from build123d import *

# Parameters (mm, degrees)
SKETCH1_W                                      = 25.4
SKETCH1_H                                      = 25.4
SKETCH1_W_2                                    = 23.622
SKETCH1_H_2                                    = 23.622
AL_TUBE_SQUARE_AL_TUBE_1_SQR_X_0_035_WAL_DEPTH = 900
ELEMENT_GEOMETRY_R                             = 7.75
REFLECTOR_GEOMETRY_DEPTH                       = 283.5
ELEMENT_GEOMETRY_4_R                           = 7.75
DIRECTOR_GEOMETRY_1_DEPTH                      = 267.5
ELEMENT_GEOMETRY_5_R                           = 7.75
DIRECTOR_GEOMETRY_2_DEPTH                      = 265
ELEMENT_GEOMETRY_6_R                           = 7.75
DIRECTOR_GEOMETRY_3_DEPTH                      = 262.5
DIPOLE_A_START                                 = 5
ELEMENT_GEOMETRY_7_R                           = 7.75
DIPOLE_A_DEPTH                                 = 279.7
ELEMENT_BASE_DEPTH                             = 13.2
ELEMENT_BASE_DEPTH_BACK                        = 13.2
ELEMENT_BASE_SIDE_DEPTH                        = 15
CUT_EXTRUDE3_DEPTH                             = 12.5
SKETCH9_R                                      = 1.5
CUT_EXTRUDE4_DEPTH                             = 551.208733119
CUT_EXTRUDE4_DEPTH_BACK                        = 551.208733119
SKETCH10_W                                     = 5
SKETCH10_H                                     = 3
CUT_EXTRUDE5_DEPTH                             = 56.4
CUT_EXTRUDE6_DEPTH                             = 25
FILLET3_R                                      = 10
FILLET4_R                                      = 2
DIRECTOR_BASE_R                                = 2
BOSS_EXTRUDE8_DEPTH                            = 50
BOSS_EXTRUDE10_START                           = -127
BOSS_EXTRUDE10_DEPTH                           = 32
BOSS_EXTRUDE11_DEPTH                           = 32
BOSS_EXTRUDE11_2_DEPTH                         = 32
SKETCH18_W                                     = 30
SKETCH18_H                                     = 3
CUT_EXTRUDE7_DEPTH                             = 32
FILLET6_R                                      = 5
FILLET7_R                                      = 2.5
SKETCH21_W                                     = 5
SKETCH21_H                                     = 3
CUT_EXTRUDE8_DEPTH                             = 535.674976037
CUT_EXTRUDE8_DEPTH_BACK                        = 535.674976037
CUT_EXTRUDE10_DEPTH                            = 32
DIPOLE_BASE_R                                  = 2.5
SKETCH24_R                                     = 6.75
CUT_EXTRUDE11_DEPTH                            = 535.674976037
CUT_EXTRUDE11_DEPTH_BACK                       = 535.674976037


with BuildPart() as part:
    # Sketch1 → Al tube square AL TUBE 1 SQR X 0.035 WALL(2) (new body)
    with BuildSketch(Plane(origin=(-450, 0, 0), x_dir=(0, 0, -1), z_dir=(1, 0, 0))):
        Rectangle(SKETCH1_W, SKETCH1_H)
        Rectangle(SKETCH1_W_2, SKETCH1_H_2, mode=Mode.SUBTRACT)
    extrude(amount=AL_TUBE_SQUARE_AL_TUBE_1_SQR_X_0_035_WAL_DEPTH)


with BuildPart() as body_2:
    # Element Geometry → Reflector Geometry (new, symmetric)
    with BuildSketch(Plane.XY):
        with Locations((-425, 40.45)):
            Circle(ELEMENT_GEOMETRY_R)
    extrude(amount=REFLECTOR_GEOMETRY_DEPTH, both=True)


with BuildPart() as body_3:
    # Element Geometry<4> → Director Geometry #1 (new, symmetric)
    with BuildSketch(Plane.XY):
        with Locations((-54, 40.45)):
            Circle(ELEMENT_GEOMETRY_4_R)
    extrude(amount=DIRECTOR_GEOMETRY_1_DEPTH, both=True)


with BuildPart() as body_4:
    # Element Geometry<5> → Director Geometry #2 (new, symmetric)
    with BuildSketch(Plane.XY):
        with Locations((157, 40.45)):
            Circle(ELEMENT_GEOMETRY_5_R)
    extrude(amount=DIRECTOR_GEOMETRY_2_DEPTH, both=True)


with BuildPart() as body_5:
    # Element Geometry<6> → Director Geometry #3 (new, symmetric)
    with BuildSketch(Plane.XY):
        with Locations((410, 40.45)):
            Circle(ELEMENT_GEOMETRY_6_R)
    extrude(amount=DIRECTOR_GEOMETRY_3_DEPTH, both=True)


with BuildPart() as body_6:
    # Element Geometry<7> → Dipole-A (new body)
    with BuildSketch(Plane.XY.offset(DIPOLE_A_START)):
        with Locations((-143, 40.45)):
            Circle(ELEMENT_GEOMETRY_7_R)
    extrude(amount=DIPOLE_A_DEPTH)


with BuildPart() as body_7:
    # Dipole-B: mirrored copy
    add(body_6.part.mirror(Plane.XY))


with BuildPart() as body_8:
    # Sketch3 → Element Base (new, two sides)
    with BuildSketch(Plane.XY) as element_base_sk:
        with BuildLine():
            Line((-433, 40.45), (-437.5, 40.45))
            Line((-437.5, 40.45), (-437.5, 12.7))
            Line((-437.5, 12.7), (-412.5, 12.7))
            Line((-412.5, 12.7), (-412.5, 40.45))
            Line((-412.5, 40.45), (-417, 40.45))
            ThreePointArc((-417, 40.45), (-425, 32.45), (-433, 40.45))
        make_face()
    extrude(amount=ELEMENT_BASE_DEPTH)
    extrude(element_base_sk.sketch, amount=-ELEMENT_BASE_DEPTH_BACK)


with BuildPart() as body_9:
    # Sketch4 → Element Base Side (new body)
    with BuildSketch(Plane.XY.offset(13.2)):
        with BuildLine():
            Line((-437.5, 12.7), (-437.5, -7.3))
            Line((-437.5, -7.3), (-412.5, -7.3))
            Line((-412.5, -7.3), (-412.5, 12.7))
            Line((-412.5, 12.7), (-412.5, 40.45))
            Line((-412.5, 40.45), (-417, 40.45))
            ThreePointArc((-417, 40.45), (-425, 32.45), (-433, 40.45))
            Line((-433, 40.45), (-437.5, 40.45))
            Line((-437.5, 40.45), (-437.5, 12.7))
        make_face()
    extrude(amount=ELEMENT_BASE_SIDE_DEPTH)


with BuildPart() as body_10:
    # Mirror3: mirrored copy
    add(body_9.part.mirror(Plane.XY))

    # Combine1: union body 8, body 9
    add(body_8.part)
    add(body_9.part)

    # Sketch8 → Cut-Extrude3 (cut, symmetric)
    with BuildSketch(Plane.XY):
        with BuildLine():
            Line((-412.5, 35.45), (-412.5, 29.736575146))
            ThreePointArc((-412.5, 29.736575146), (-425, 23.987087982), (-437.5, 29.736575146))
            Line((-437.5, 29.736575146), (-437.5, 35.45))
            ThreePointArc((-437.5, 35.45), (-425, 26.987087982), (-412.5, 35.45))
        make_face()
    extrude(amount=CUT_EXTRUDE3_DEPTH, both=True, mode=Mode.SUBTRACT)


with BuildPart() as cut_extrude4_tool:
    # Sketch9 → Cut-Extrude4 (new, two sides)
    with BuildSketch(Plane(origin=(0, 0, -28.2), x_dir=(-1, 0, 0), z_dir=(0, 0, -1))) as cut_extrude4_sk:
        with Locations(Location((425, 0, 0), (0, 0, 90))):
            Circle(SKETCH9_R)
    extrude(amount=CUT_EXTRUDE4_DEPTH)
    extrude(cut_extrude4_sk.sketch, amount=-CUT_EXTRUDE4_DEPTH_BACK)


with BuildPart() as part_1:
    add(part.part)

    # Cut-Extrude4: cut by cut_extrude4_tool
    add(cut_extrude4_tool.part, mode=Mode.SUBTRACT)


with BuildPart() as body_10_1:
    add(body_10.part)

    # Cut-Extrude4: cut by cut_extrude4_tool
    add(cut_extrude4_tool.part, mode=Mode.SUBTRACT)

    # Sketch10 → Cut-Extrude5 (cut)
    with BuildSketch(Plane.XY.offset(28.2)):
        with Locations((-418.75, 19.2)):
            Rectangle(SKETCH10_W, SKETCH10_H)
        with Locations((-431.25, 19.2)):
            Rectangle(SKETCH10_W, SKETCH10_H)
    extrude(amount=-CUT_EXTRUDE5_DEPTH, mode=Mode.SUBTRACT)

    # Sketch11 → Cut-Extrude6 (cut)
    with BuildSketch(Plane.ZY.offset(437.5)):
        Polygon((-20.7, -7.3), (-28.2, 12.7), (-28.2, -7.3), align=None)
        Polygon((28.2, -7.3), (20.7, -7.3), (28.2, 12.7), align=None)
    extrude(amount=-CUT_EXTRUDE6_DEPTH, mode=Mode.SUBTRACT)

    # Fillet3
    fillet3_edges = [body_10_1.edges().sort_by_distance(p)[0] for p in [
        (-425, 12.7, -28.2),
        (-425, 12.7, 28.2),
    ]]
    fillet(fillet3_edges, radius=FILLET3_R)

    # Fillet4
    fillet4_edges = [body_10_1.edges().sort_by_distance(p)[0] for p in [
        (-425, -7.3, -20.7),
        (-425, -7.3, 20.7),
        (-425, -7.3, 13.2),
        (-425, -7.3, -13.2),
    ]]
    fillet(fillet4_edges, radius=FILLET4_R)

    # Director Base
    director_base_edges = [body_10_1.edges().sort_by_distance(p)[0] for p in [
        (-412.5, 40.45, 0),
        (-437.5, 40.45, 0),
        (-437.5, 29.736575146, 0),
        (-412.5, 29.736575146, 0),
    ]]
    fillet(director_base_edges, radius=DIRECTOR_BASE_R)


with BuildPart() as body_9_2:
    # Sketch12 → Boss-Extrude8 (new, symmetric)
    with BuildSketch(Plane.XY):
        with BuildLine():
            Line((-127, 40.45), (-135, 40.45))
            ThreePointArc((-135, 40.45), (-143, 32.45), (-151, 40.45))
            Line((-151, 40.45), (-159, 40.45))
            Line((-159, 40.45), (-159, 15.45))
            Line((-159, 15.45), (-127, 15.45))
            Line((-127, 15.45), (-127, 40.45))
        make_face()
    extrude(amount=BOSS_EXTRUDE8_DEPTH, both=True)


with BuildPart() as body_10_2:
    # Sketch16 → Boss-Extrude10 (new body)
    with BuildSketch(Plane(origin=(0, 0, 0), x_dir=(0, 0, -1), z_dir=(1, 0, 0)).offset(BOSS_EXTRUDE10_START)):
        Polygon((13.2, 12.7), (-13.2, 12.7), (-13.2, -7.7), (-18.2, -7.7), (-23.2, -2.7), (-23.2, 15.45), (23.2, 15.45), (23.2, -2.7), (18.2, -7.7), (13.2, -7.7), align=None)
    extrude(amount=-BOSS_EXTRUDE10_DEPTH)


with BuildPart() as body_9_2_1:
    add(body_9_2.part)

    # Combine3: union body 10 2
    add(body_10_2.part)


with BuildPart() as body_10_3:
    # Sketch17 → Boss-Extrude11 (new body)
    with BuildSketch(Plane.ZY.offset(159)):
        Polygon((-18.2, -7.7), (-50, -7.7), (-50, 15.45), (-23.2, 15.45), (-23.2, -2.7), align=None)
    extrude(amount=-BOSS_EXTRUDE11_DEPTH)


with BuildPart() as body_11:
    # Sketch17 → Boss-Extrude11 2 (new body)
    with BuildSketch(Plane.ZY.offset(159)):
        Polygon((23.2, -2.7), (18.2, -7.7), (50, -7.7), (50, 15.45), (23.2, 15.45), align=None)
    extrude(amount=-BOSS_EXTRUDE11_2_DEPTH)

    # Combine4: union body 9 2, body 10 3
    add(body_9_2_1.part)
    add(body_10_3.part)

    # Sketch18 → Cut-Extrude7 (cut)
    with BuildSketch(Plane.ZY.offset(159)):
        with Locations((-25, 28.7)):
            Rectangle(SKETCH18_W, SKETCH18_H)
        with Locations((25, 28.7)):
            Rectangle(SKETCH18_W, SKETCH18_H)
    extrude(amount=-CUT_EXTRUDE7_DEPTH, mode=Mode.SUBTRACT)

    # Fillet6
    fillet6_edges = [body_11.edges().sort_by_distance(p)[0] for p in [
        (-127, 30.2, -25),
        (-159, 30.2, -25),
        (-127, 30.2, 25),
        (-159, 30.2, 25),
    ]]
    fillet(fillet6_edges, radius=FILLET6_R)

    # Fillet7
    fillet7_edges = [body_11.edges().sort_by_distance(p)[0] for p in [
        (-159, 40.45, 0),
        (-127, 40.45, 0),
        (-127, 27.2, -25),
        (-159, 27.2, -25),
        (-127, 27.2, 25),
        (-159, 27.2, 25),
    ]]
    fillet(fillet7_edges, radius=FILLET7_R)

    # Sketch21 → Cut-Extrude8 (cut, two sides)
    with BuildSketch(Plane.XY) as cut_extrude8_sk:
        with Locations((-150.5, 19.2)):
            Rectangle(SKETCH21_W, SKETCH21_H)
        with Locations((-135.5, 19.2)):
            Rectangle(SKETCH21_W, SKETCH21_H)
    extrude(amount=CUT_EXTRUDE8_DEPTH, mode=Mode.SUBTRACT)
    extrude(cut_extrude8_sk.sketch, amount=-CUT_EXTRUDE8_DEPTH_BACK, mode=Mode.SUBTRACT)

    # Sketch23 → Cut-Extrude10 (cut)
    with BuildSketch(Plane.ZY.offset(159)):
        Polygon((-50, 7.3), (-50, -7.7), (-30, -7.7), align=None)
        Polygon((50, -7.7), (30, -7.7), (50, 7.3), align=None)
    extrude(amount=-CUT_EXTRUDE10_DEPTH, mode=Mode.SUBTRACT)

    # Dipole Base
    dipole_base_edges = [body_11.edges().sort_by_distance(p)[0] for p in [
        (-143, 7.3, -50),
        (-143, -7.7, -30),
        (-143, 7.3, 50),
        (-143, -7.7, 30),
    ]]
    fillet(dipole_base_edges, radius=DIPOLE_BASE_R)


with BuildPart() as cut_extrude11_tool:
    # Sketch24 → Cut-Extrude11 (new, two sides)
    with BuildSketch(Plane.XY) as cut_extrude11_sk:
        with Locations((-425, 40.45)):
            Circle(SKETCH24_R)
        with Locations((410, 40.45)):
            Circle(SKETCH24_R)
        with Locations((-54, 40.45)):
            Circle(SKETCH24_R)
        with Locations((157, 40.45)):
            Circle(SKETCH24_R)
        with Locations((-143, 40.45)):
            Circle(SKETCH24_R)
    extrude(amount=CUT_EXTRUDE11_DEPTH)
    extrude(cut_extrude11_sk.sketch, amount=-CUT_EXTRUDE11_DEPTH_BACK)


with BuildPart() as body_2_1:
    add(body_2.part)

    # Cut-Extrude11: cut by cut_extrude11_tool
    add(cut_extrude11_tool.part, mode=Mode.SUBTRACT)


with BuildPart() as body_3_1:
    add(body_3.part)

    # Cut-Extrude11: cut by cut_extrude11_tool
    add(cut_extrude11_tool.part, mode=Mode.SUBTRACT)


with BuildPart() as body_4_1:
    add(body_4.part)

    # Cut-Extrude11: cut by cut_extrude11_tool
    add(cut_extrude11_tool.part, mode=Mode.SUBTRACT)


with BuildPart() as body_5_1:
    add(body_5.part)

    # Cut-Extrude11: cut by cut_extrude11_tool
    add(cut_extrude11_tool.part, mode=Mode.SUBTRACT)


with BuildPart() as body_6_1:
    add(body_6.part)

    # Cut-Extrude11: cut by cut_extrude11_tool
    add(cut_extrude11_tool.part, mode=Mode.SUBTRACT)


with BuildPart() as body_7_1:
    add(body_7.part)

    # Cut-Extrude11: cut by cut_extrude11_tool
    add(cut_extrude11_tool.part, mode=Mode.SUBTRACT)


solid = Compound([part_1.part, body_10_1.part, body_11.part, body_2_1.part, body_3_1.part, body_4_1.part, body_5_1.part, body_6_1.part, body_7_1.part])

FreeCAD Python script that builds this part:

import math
import FreeCAD as App
import Part
import Sketcher

V = App.Vector
Q = App.Units.Quantity


def edges_at(feature, points):
    """Names of the edges that pass closest to the given points."""
    edges = feature.Shape.Edges
    near = lambda p: min(range(len(edges)), key=lambda i: edges[i].distToShape(Part.Vertex(*p))[0])
    return sorted({f"Edge{near(p) + 1}" for p in points})


def add_polygon(sketch, points):
    """Adds a closed chain of lines whose ends are joined by coincident constraints."""
    first, n = sketch.GeometryCount, len(points)
    for a, b in zip(points, points[1:] + points[:1]):
        sketch.addGeometry(Part.LineSegment(App.Vector(*a, 0), App.Vector(*b, 0)), False)
    for i in range(n):
        sketch.addConstraint(Sketcher.Constraint("Coincident", first + i, 2, first + (i + 1) % n, 1))

doc = App.newDocument("Part")
params = doc.addObject("Spreadsheet::Sheet", "Params")
for row, (alias, value) in enumerate([
    ("sketch1_width", "25.4 mm"),
    ("pad1_length", "900 mm"),
    ("sketch2_diameter", "15.5 mm"),
    ("pad2_length", "567 mm"),
    ("sketch3_diameter", "15.5 mm"),
    ("pad3_length", "535 mm"),
    ("sketch4_diameter", "15.5 mm"),
    ("pad4_length", "530 mm"),
    ("sketch5_diameter", "15.5 mm"),
    ("pad5_length", "525 mm"),
    ("sketch6_diameter", "15.5 mm"),
    ("pad6_length", "279.7 mm"),
    ("sketch7_radius", "8 mm"),
    ("sketch7_width", "25 mm"),
    ("sketch7_height", "27.75 mm"),
    ("pad7_length", "13.2 mm"),
    ("pad7_length2", "13.2 mm"),
    ("sketch8_radius", "8 mm"),
    ("sketch8_width", "25 mm"),
    ("sketch8_height", "47.75 mm"),
    ("pad8_length", "15 mm"),
    ("pocket1_length", "25 mm"),
    ("sketch10_diameter", "3 mm"),
    ("pad9_length", "551.208733 mm"),
    ("pad9_length2", "551.208733 mm"),
    ("sketch11_width", "5 mm"),
    ("sketch11_height", "3 mm"),
    ("pocket2_length", "56.4 mm"),
    ("sketch12_width", "20 mm"),
    ("sketch12_height", "7.5 mm"),
    ("pocket3_length", "25 mm"),
    ("fillet_radius", "10 mm"),
    ("fillet2_radius", "2 mm"),
    ("fillet3_radius", "2 mm"),
    ("sketch13_radius", "8 mm"),
    ("sketch13_width", "8 mm"),
    ("sketch13_height", "25 mm"),
    ("pad10_length", "100 mm"),
    ("sketch14_height", "5 mm"),
    ("sketch14_width", "20.4 mm"),
    ("sketch14_height2", "26.4 mm"),
    ("sketch14_height3", "46.4 mm"),
    ("sketch14_width2", "18.15 mm"),
    ("pad11_length", "32 mm"),
    ("sketch15_height", "31.8 mm"),
    ("sketch15_height2", "26.8 mm"),
    ("sketch15_width", "18.15 mm"),
    ("pad12_length", "32 mm"),
    ("sketch16_height", "31.8 mm"),
    ("sketch16_height2", "26.8 mm"),
    ("sketch16_width", "23.15 mm"),
    ("pad13_length", "32 mm"),
    ("sketch17_width", "3 mm"),
    ("sketch17_height", "30 mm"),
    ("pocket4_length", "32 mm"),
    ("fillet4_radius", "5 mm"),
    ("fillet5_radius", "2.5 mm"),
    ("sketch18_width", "5 mm"),
    ("sketch18_height", "3 mm"),
    ("sketch19_width", "15 mm"),
    ("sketch19_height", "20 mm"),
    ("pocket6_length", "32 mm"),
    ("fillet6_radius", "2.5 mm"),
    ("sketch20_diameter", "13.5 mm"),
    ("pad14_length", "535.674976 mm"),
    ("pad14_length2", "535.674976 mm"),
], start=1):
    params.set(f"A{row}", alias)
    params.set(f"B{row}", "=" + value)
    params.setAlias(f"B{row}", alias)

body = doc.addObject("PartDesign::Body", "Body")

# Sketch on YZ plane
sketch1 = doc.addObject("Sketcher::SketchObject", "Sketch")
body.addObject(sketch1)
sketch1.AttachmentSupport = (doc.YZ_Plane, [""])
sketch1.MapMode = "FlatFace"
sketch1.AttachmentOffset = App.Placement(V(0, 0, -450), App.Rotation())
add_polygon(sketch1, [(13, 13), (-13, 13), (-13, -13), (13, -13)])  # lines 0-3
add_polygon(sketch1, [(-12, -12), (-12, 12), (12, 12), (12, -12)])  # lines 4-7
sketch1.addConstraint(Sketcher.Constraint("Horizontal", 0))
sketch1.addConstraint(Sketcher.Constraint("Vertical", 1))
sketch1.addConstraint(Sketcher.Constraint("Horizontal", 2))
sketch1.addConstraint(Sketcher.Constraint("Vertical", 3))
sketch1.addConstraint(Sketcher.Constraint("Vertical", 4))
sketch1.addConstraint(Sketcher.Constraint("Horizontal", 5))
sketch1.addConstraint(Sketcher.Constraint("Vertical", 6))
sketch1.addConstraint(Sketcher.Constraint("Horizontal", 7))
sketch1.addConstraint(Sketcher.Constraint("Symmetric", 0, 2, 2, 2, -1, 1))
sketch1.addConstraint(Sketcher.Constraint("Symmetric", 4, 2, 6, 2, -1, 1))
sketch1.addConstraint(Sketcher.Constraint("Equal", 2, 1))
sketch1.addConstraint(Sketcher.Constraint("Equal", 7, 4))
sketch1.addConstraint(Sketcher.Constraint("DistanceX", 0, 2, 0, 1, 25.4))
sketch1.addConstraint(Sketcher.Constraint("DistanceX", 5, 1, 5, 2, 23.622))
sketch1.setExpression("Constraints[20]", "Params.sketch1_width")
pad1 = doc.addObject("PartDesign::Pad", "Pad")
body.addObject(pad1)
pad1.Profile = sketch1
pad1.setExpression("Length", "Params.pad1_length")
body2 = doc.addObject("PartDesign::Body", "Body001")

# Sketch on XY plane
sketch2 = doc.addObject("Sketcher::SketchObject", "Sketch001")
body2.addObject(sketch2)
sketch2.AttachmentSupport = (doc.getObject("XY_Plane001"), [""])
sketch2.MapMode = "FlatFace"
sketch2.addGeometry(Part.Circle(V(-425, 40, 0), V(0, 0, 1), 8), False)
sketch2.addConstraint(Sketcher.Constraint("Diameter", 0, 15.5))
sketch2.addConstraint(Sketcher.Constraint("DistanceX", 0, 3, -1, 1, 425.0))
sketch2.addConstraint(Sketcher.Constraint("DistanceY", -1, 1, 0, 3, 40.45))
sketch2.setExpression("Constraints[0]", "Params.sketch2_diameter")
pad2 = doc.addObject("PartDesign::Pad", "Pad001")
body2.addObject(pad2)
pad2.Profile = sketch2
pad2.setExpression("Length", "Params.pad2_length")
pad2.Midplane = True
body3 = doc.addObject("PartDesign::Body", "Body002")

# Sketch on XY plane
sketch3 = doc.addObject("Sketcher::SketchObject", "Sketch002")
body3.addObject(sketch3)
sketch3.AttachmentSupport = (doc.getObject("XY_Plane002"), [""])
sketch3.MapMode = "FlatFace"
sketch3.addGeometry(Part.Circle(V(-54, 40, 0), V(0, 0, 1), 8), False)
sketch3.addConstraint(Sketcher.Constraint("Diameter", 0, 15.5))
sketch3.addConstraint(Sketcher.Constraint("DistanceX", 0, 3, -1, 1, 54.0))
sketch3.addConstraint(Sketcher.Constraint("DistanceY", -1, 1, 0, 3, 40.45))
sketch3.setExpression("Constraints[0]", "Params.sketch3_diameter")
pad3 = doc.addObject("PartDesign::Pad", "Pad002")
body3.addObject(pad3)
pad3.Profile = sketch3
pad3.setExpression("Length", "Params.pad3_length")
pad3.Midplane = True
body4 = doc.addObject("PartDesign::Body", "Body003")

# Sketch on XY plane
sketch4 = doc.addObject("Sketcher::SketchObject", "Sketch003")
body4.addObject(sketch4)
sketch4.AttachmentSupport = (doc.getObject("XY_Plane003"), [""])
sketch4.MapMode = "FlatFace"
sketch4.addGeometry(Part.Circle(V(157, 40, 0), V(0, 0, 1), 8), False)
sketch4.addConstraint(Sketcher.Constraint("Diameter", 0, 15.5))
sketch4.addConstraint(Sketcher.Constraint("DistanceX", -1, 1, 0, 3, 157.0))
sketch4.addConstraint(Sketcher.Constraint("DistanceY", -1, 1, 0, 3, 40.45))
sketch4.setExpression("Constraints[0]", "Params.sketch4_diameter")
pad4 = doc.addObject("PartDesign::Pad", "Pad003")
body4.addObject(pad4)
pad4.Profile = sketch4
pad4.setExpression("Length", "Params.pad4_length")
pad4.Midplane = True
body5 = doc.addObject("PartDesign::Body", "Body004")

# Sketch on XY plane
sketch5 = doc.addObject("Sketcher::SketchObject", "Sketch004")
body5.addObject(sketch5)
sketch5.AttachmentSupport = (doc.getObject("XY_Plane004"), [""])
sketch5.MapMode = "FlatFace"
sketch5.addGeometry(Part.Circle(V(410, 40, 0), V(0, 0, 1), 8), False)
sketch5.addConstraint(Sketcher.Constraint("Diameter", 0, 15.5))
sketch5.addConstraint(Sketcher.Constraint("DistanceX", -1, 1, 0, 3, 410.0))
sketch5.addConstraint(Sketcher.Constraint("DistanceY", -1, 1, 0, 3, 40.45))
sketch5.setExpression("Constraints[0]", "Params.sketch5_diameter")
pad5 = doc.addObject("PartDesign::Pad", "Pad004")
body5.addObject(pad5)
pad5.Profile = sketch5
pad5.setExpression("Length", "Params.pad5_length")
pad5.Midplane = True
body6 = doc.addObject("PartDesign::Body", "Body005")

# Sketch on XY plane
sketch6 = doc.addObject("Sketcher::SketchObject", "Sketch005")
body6.addObject(sketch6)
sketch6.AttachmentSupport = (doc.getObject("XY_Plane005"), [""])
sketch6.MapMode = "FlatFace"
sketch6.AttachmentOffset = App.Placement(V(0, 0, 5), App.Rotation())
sketch6.addGeometry(Part.Circle(V(-143, 40, 0), V(0, 0, 1), 8), False)
sketch6.addConstraint(Sketcher.Constraint("Diameter", 0, 15.5))
sketch6.addConstraint(Sketcher.Constraint("DistanceX", 0, 3, -1, 1, 143.0))
sketch6.addConstraint(Sketcher.Constraint("DistanceY", -1, 1, 0, 3, 40.45))
sketch6.setExpression("Constraints[0]", "Params.sketch6_diameter")
pad6 = doc.addObject("PartDesign::Pad", "Pad005")
body6.addObject(pad6)
pad6.Profile = sketch6
pad6.setExpression("Length", "Params.pad6_length")
body7 = doc.addObject("PartDesign::Body", "Body006")
doc.recompute()

mirroring = doc.addObject("Part::Mirroring", "Mirroring")
mirroring.Source = body6
mirroring.Base = V(0, 0, 0)
mirroring.Normal = V(0, 0, 1)
body7.BaseFeature = mirroring
doc.recompute()
body8 = doc.addObject("PartDesign::Body", "Body007")

# Sketch on XY plane
sketch7 = doc.addObject("Sketcher::SketchObject", "Sketch006")
body8.addObject(sketch7)
sketch7.AttachmentSupport = (doc.getObject("XY_Plane007"), [""])
sketch7.MapMode = "FlatFace"
sketch7.addGeometry(Part.LineSegment(V(-433, 40.5, 0), V(-437.5, 40.5, 0)), False)
sketch7.addGeometry(Part.LineSegment(V(-437.5, 40.5, 0), V(-437.5, 12.7, 0)), False)
sketch7.addGeometry(Part.LineSegment(V(-437.5, 12.7, 0), V(-412.5, 12.7, 0)), False)
sketch7.addGeometry(Part.LineSegment(V(-412.5, 12.7, 0), V(-412.5, 40.5, 0)), False)
sketch7.addGeometry(Part.LineSegment(V(-412.5, 40.5, 0), V(-417, 40.5, 0)), False)
sketch7.addGeometry(Part.ArcOfCircle(Part.Circle(V(-425, 40.5, 0), V(0, 0, 1), 8), math.radians(180), math.radians(360)), False)
sketch7.addConstraint(Sketcher.Constraint("Coincident", 0, 2, 1, 1))
sketch7.addConstraint(Sketcher.Constraint("Coincident", 1, 2, 2, 1))
sketch7.addConstraint(Sketcher.Constraint("Coincident", 2, 2, 3, 1))
sketch7.addConstraint(Sketcher.Constraint("Coincident", 3, 2, 4, 1))
sketch7.addConstraint(Sketcher.Constraint("Coincident", 4, 2, 5, 2))
sketch7.addConstraint(Sketcher.Constraint("Coincident", 5, 1, 0, 1))
sketch7.addConstraint(Sketcher.Constraint("Horizontal", 0))
sketch7.addConstraint(Sketcher.Constraint("Vertical", 1))
sketch7.addConstraint(Sketcher.Constraint("Horizontal", 2))
sketch7.addConstraint(Sketcher.Constraint("Vertical", 3))
sketch7.addConstraint(Sketcher.Constraint("Horizontal", 4))
sketch7.addConstraint(Sketcher.Constraint("Horizontal", 5, 3, 0, 2))
sketch7.addConstraint(Sketcher.Constraint("Horizontal", 0, 2, 3, 2))
sketch7.addConstraint(Sketcher.Constraint("Equal", 0, 4))
sketch7.addConstraint(Sketcher.Constraint("Radius", 5, 8.0))
sketch7.addConstraint(Sketcher.Constraint("DistanceX", 2, 1, 2, 2, 25.0))
sketch7.addConstraint(Sketcher.Constraint("DistanceX", 5, 3, -1, 1, 425.0))
sketch7.addConstraint(Sketcher.Constraint("DistanceY", 1, 2, 1, 1, 27.75))
sketch7.addConstraint(Sketcher.Constraint("DistanceY", -1, 1, 1, 2, 12.7))
sketch7.setExpression("Constraints[14]", "Params.sketch7_radius")
sketch7.setExpression("Constraints[15]", "Params.sketch7_width")
sketch7.setExpression("Constraints[17]", "Params.sketch7_height")
pad7 = doc.addObject("PartDesign::Pad", "Pad006")
body8.addObject(pad7)
pad7.Profile = sketch7
pad7.Type = "TwoLengths"
pad7.setExpression("Length", "Params.pad7_length")
pad7.setExpression("Length2", "Params.pad7_length2")
body9 = doc.addObject("PartDesign::Body", "Body008")

# Sketch on XY plane
sketch8 = doc.addObject("Sketcher::SketchObject", "Sketch007")
body9.addObject(sketch8)
sketch8.AttachmentSupport = (doc.getObject("XY_Plane008"), [""])
sketch8.MapMode = "FlatFace"
sketch8.AttachmentOffset = App.Placement(V(0, 0, 13.2), App.Rotation())
sketch8.addGeometry(Part.LineSegment(V(-437.5, -7.3, 0), V(-412.5, -7.3, 0)), False)
sketch8.addGeometry(Part.LineSegment(V(-412.5, -7.3, 0), V(-412.5, 40.5, 0)), False)
sketch8.addGeometry(Part.LineSegment(V(-412.5, 40.5, 0), V(-417, 40.5, 0)), False)
sketch8.addGeometry(Part.ArcOfCircle(Part.Circle(V(-425, 40.5, 0), V(0, 0, 1), 8), math.radians(180), math.radians(360)), False)
sketch8.addGeometry(Part.LineSegment(V(-433, 40.5, 0), V(-437.5, 40.5, 0)), False)
sketch8.addGeometry(Part.LineSegment(V(-437.5, 40.5, 0), V(-437.5, -7.3, 0)), False)
sketch8.addConstraint(Sketcher.Constraint("Coincident", 0, 2, 1, 1))
sketch8.addConstraint(Sketcher.Constraint("Coincident", 1, 2, 2, 1))
sketch8.addConstraint(Sketcher.Constraint("Coincident", 2, 2, 3, 2))
sketch8.addConstraint(Sketcher.Constraint("Coincident", 3, 1, 4, 1))
sketch8.addConstraint(Sketcher.Constraint("Coincident", 4, 2, 5, 1))
sketch8.addConstraint(Sketcher.Constraint("Coincident", 5, 2, 0, 1))
sketch8.addConstraint(Sketcher.Constraint("Horizontal", 0))
sketch8.addConstraint(Sketcher.Constraint("Vertical", 1))
sketch8.addConstraint(Sketcher.Constraint("Horizontal", 2))
sketch8.addConstraint(Sketcher.Constraint("Horizontal", 4))
sketch8.addConstraint(Sketcher.Constraint("Vertical", 5))
sketch8.addConstraint(Sketcher.Constraint("Horizontal", 3, 3, 1, 2))
sketch8.addConstraint(Sketcher.Constraint("Horizontal", 2, 2, 3, 1))
sketch8.addConstraint(Sketcher.Constraint("Equal", 2, 4))
sketch8.addConstraint(Sketcher.Constraint("Radius", 3, 8.0))
sketch8.addConstraint(Sketcher.Constraint("DistanceX", 0, 1, 0, 2, 25.0))
sketch8.addConstraint(Sketcher.Constraint("DistanceX", 3, 3, -1, 1, 425.0))
sketch8.addConstraint(Sketcher.Constraint("DistanceY", 1, 1, 1, 2, 47.75))
sketch8.addConstraint(Sketcher.Constraint("DistanceY", 0, 2, -1, 1, 7.3))
sketch8.setExpression("Constraints[14]", "Params.sketch8_radius")
sketch8.setExpression("Constraints[15]", "Params.sketch8_width")
sketch8.setExpression("Constraints[17]", "Params.sketch8_height")
pad8 = doc.addObject("PartDesign::Pad", "Pad007")
body9.addObject(pad8)
pad8.Profile = sketch8
pad8.setExpression("Length", "Params.pad8_length")
body10 = doc.addObject("PartDesign::Body", "Body009")
doc.recompute()

mirroring2 = doc.addObject("Part::Mirroring", "Mirroring001")
mirroring2.Source = body9
mirroring2.Base = V(0, 0, 0)
mirroring2.Normal = V(0, 0, 1)
body10.BaseFeature = mirroring2
doc.recompute()

boolean = doc.addObject("PartDesign::Boolean", "Boolean")
body10.addObject(boolean)
boolean.Type = "Fuse"
boolean.addObjects([body8])
doc.recompute()

boolean2 = doc.addObject("PartDesign::Boolean", "Boolean001")
body10.addObject(boolean2)
boolean2.Type = "Fuse"
boolean2.addObjects([body9])

# Sketch on XY plane
sketch9 = doc.addObject("Sketcher::SketchObject", "Sketch008")
body10.addObject(sketch9)
sketch9.AttachmentSupport = (doc.getObject("XY_Plane009"), [""])
sketch9.MapMode = "FlatFace"
sketch9.addGeometry(Part.LineSegment(V(-412, 30, 0), V(-412, 35, 0)), False)
sketch9.addGeometry(Part.ArcOfCircle(Part.Circle(V(-425, 40, 0), V(0, 0, 1), 13), math.radians(-158), math.radians(-22)), False)
sketch9.addGeometry(Part.LineSegment(V(-438, 35, 0), V(-438, 30, 0)), False)
sketch9.addGeometry(Part.ArcOfCircle(Part.Circle(V(-425, 40, 0), V(0, 0, 1), 16), math.radians(-139), math.radians(-41)), False)
sketch9.addConstraint(Sketcher.Constraint("Coincident", 0, 2, 1, 2))
sketch9.addConstraint(Sketcher.Constraint("Coincident", 1, 1, 2, 1))
sketch9.addConstraint(Sketcher.Constraint("Coincident", 2, 2, 3, 1))
sketch9.addConstraint(Sketcher.Constraint("Coincident", 3, 2, 0, 1))
sketch9.addConstraint(Sketcher.Constraint("Vertical", 0))
sketch9.addConstraint(Sketcher.Constraint("Vertical", 2))
sketch9.addConstraint(Sketcher.Constraint("Coincident", 3, 3, 1, 3))
sketch9.addConstraint(Sketcher.Constraint("Horizontal", 0, 2, 1, 1))
sketch9.addConstraint(Sketcher.Constraint("DistanceX", 1, 3, -1, 1, 425.0))
sketch9.addConstraint(Sketcher.Constraint("DistanceY", 0, 2, 3, 3, 5.0))
sketch9.addConstraint(Sketcher.Constraint("DistanceX", 1, 1, 0, 2, 25.0))
sketch9.addConstraint(Sketcher.Constraint("DistanceY", -1, 1, 1, 3, 40.45))
sketch9.addConstraint(Sketcher.Constraint("Radius", 3, 16.462912))
pocket1 = doc.addObject("PartDesign::Pocket", "Pocket")
body10.addObject(pocket1)
pocket1.Profile = sketch9
pocket1.setExpression("Length", "Params.pocket1_length")
pocket1.Midplane = True
body11 = doc.addObject("PartDesign::Body", "Body010")

# Sketch on XY plane
sketch10 = doc.addObject("Sketcher::SketchObject", "Sketch009")
body11.addObject(sketch10)
sketch10.AttachmentSupport = (doc.getObject("XY_Plane010"), [""])
sketch10.MapMode = "FlatFace"
sketch10.AttachmentOffset = App.Placement(V(0, 0, -28.2), App.Rotation())
sketch10.addGeometry(Part.Circle(V(-425, 0, 0), V(0, 0, 1), 1.5), False)
sketch10.addConstraint(Sketcher.Constraint("PointOnObject", 0, 3, -1))
sketch10.addConstraint(Sketcher.Constraint("Diameter", 0, 3.0))
sketch10.addConstraint(Sketcher.Constraint("DistanceX", 0, 3, -1, 1, 425.0))
sketch10.setExpression("Constraints[1]", "Params.sketch10_diameter")
pad9 = doc.addObject("PartDesign::Pad", "Pad008")
body11.addObject(pad9)
pad9.Profile = sketch10
pad9.Type = "TwoLengths"
pad9.setExpression("Length", "Params.pad9_length")
pad9.setExpression("Length2", "Params.pad9_length2")
pad9.Reversed = True
doc.recompute()

body12 = doc.addObject("PartDesign::Body", "Body011")
body12.BaseFeature = body11
boolean3 = doc.addObject("PartDesign::Boolean", "Boolean002")
body.addObject(boolean3)
boolean3.Type = "Cut"
boolean3.addObjects([body12])
doc.recompute()

boolean4 = doc.addObject("PartDesign::Boolean", "Boolean003")
body10.addObject(boolean4)
boolean4.Type = "Cut"
boolean4.addObjects([body11])

# Sketch on XY plane
sketch11 = doc.addObject("Sketcher::SketchObject", "Sketch010")
body10.addObject(sketch11)
sketch11.AttachmentSupport = (doc.getObject("XY_Plane009"), [""])
sketch11.MapMode = "FlatFace"
sketch11.AttachmentOffset = App.Placement(V(0, 0, 28.2), App.Rotation())
add_polygon(sketch11, [(-421.2, 20.7), (-421.2, 17.7), (-416.2, 17.7), (-416.2, 20.7)])  # lines 0-3
add_polygon(sketch11, [(-433.8, 20.7), (-433.8, 17.7), (-428.8, 17.7), (-428.8, 20.7)])  # lines 4-7
sketch11.addConstraint(Sketcher.Constraint("Vertical", 0))
sketch11.addConstraint(Sketcher.Constraint("Horizontal", 1))
sketch11.addConstraint(Sketcher.Constraint("Vertical", 2))
sketch11.addConstraint(Sketcher.Constraint("Horizontal", 3))
sketch11.addConstraint(Sketcher.Constraint("Vertical", 4))
sketch11.addConstraint(Sketcher.Constraint("Horizontal", 5))
sketch11.addConstraint(Sketcher.Constraint("Vertical", 6))
sketch11.addConstraint(Sketcher.Constraint("Horizontal", 7))
sketch11.addConstraint(Sketcher.Constraint("Horizontal", 1, 2, 4, 2))
sketch11.addConstraint(Sketcher.Constraint("Horizontal", 3, 2, 6, 2))
sketch11.addConstraint(Sketcher.Constraint("Equal", 3, 5))
sketch11.addConstraint(Sketcher.Constraint("DistanceX", 1, 1, 1, 2, 5.0))
sketch11.addConstraint(Sketcher.Constraint("DistanceY", 0, 2, 0, 1, 3.0))
sketch11.addConstraint(Sketcher.Constraint("DistanceY", -1, 1, 0, 2, 17.7))
sketch11.addConstraint(Sketcher.Constraint("DistanceX", 4, 2, 0, 2, 12.5))
sketch11.addConstraint(Sketcher.Constraint("DistanceX", 0, 2, -1, 1, 421.25))
sketch11.setExpression("Constraints[19]", "Params.sketch11_width")
sketch11.setExpression("Constraints[20]", "Params.sketch11_height")
pocket2 = doc.addObject("PartDesign::Pocket", "Pocket001")
body10.addObject(pocket2)
pocket2.Profile = sketch11
pocket2.setExpression("Length", "Params.pocket2_length")

# Sketch on YZ plane
sketch12 = doc.addObject("Sketcher::SketchObject", "Sketch011")
body10.addObject(sketch12)
sketch12.AttachmentSupport = (doc.getObject("YZ_Plane009"), [""])
sketch12.MapMode = "FlatFace"
sketch12.AttachmentOffset = App.Placement(V(0, 0, -437.5), App.Rotation())
add_polygon(sketch12, [(-7, -21), (13, -28), (-7, -28)])  # lines 0-2
add_polygon(sketch12, [(-7, 21), (-7, 28), (13, 28)])  # lines 3-5
sketch12.addConstraint(Sketcher.Constraint("Horizontal", 1))
sketch12.addConstraint(Sketcher.Constraint("Vertical", 2))
sketch12.addConstraint(Sketcher.Constraint("Vertical", 3))
sketch12.addConstraint(Sketcher.Constraint("Horizontal", 4))
sketch12.addConstraint(Sketcher.Constraint("Symmetric", 1, 2, 3, 2, -1))
sketch12.addConstraint(Sketcher.Constraint("Vertical", 0, 2, 4, 2))
sketch12.addConstraint(Sketcher.Constraint("Equal", 2, 3))
sketch12.addConstraint(Sketcher.Constraint("DistanceX", 1, 2, 1, 1, 20.0))
sketch12.addConstraint(Sketcher.Constraint("DistanceY", 2, 1, 2, 2, 7.5))
sketch12.addConstraint(Sketcher.Constraint("DistanceX", -1, 1, 0, 2, 12.7))
sketch12.addConstraint(Sketcher.Constraint("DistanceY", 0, 2, -1, 1, 28.2))
sketch12.setExpression("Constraints[13]", "Params.sketch12_width")
sketch12.setExpression("Constraints[14]", "Params.sketch12_height")
pocket3 = doc.addObject("PartDesign::Pocket", "Pocket002")
body10.addObject(pocket3)
pocket3.Profile = sketch12
pocket3.setExpression("Length", "Params.pocket3_length")
pocket3.Reversed = True
doc.recompute()

fillet = doc.addObject("PartDesign::Fillet", "Fillet")
body10.addObject(fillet)
fillet.Base = (pocket3, edges_at(pocket3, [(-425, 12.7, -28.2), (-425, 12.7, 28.2)]))
fillet.setExpression("Radius", "Params.fillet_radius")
doc.recompute()

fillet2 = doc.addObject("PartDesign::Fillet", "Fillet001")
body10.addObject(fillet2)
fillet2.Base = (fillet, edges_at(fillet, [
    (-425, -7.3, -20.7),
    (-425, -7.3, 20.7),
    (-425, -7.3, 13.2),
    (-425, -7.3, -13.2),
]))
fillet2.setExpression("Radius", "Params.fillet2_radius")
doc.recompute()

fillet3 = doc.addObject("PartDesign::Fillet", "Fillet002")
body10.addObject(fillet3)
fillet3.Base = (fillet2, edges_at(fillet2, [
    (-412.5, 40.45, 0),
    (-437.5, 40.45, 0),
    (-437.5, 29.737, 0),
    (-412.5, 29.737, 0),
]))
fillet3.setExpression("Radius", "Params.fillet3_radius")
body13 = doc.addObject("PartDesign::Body", "Body012")

# Sketch on XY plane
sketch13 = doc.addObject("Sketcher::SketchObject", "Sketch012")
body13.addObject(sketch13)
sketch13.AttachmentSupport = (doc.getObject("XY_Plane012"), [""])
sketch13.MapMode = "FlatFace"
sketch13.addGeometry(Part.LineSegment(V(-127, 40, 0), V(-135, 40, 0)), False)
sketch13.addGeometry(Part.ArcOfCircle(Part.Circle(V(-143, 40, 0), V(0, 0, 1), 8), math.radians(180), math.radians(360)), False)
sketch13.addGeometry(Part.LineSegment(V(-151, 40, 0), V(-159, 40, 0)), False)
sketch13.addGeometry(Part.LineSegment(V(-159, 40, 0), V(-159, 15, 0)), False)
sketch13.addGeometry(Part.LineSegment(V(-159, 15, 0), V(-127, 15, 0)), False)
sketch13.addGeometry(Part.LineSegment(V(-127, 15, 0), V(-127, 40, 0)), False)
sketch13.addConstraint(Sketcher.Constraint("Coincident", 0, 2, 1, 2))
sketch13.addConstraint(Sketcher.Constraint("Coincident", 1, 1, 2, 1))
sketch13.addConstraint(Sketcher.Constraint("Coincident", 2, 2, 3, 1))
sketch13.addConstraint(Sketcher.Constraint("Coincident", 3, 2, 4, 1))
sketch13.addConstraint(Sketcher.Constraint("Coincident", 4, 2, 5, 1))
sketch13.addConstraint(Sketcher.Constraint("Coincident", 5, 2, 0, 1))
sketch13.addConstraint(Sketcher.Constraint("Horizontal", 0))
sketch13.addConstraint(Sketcher.Constraint("Horizontal", 2))
sketch13.addConstraint(Sketcher.Constraint("Vertical", 3))
sketch13.addConstraint(Sketcher.Constraint("Horizontal", 4))
sketch13.addConstraint(Sketcher.Constraint("Vertical", 5))
sketch13.addConstraint(Sketcher.Constraint("Horizontal", 1, 3, 0, 2))
sketch13.addConstraint(Sketcher.Constraint("Horizontal", 0, 2, 1, 1))
sketch13.addConstraint(Sketcher.Constraint("Equal", 0, 2))
sketch13.addConstraint(Sketcher.Constraint("Radius", 1, 8.0))
sketch13.addConstraint(Sketcher.Constraint("DistanceX", 0, 2, 0, 1, 8.0))
sketch13.addConstraint(Sketcher.Constraint("DistanceY", 3, 2, 3, 1, 25.0))
sketch13.addConstraint(Sketcher.Constraint("DistanceX", 1, 3, -1, 1, 143.0))
sketch13.addConstraint(Sketcher.Constraint("DistanceY", -1, 1, 1, 3, 40.45))
sketch13.setExpression("Constraints[14]", "Params.sketch13_radius")
sketch13.setExpression("Constraints[15]", "Params.sketch13_width")
sketch13.setExpression("Constraints[16]", "Params.sketch13_height")
pad10 = doc.addObject("PartDesign::Pad", "Pad009")
body13.addObject(pad10)
pad10.Profile = sketch13
pad10.setExpression("Length", "Params.pad10_length")
pad10.Midplane = True
body14 = doc.addObject("PartDesign::Body", "Body013")

# Sketch on YZ plane
sketch14 = doc.addObject("Sketcher::SketchObject", "Sketch013")
body14.addObject(sketch14)
sketch14.AttachmentSupport = (doc.getObject("YZ_Plane013"), [""])
sketch14.MapMode = "FlatFace"
sketch14.AttachmentOffset = App.Placement(V(0, 0, -127), App.Rotation())
add_polygon(sketch14, [(13, 13), (13, -13), (-8, -13), (-8, -18), (-3, -23), (15, -23), (15, 23), (-3, 23), (-8, 18), (-8, 13)])  # lines 0-9
sketch14.addConstraint(Sketcher.Constraint("Vertical", 0))
sketch14.addConstraint(Sketcher.Constraint("Horizontal", 1))
sketch14.addConstraint(Sketcher.Constraint("Vertical", 2))
sketch14.addConstraint(Sketcher.Constraint("Horizontal", 4))
sketch14.addConstraint(Sketcher.Constraint("Vertical", 5))
sketch14.addConstraint(Sketcher.Constraint("Horizontal", 6))
sketch14.addConstraint(Sketcher.Constraint("Vertical", 8))
sketch14.addConstraint(Sketcher.Constraint("Horizontal", 9))
sketch14.addConstraint(Sketcher.Constraint("Symmetric", 3, 2, 6, 2, -1))
sketch14.addConstraint(Sketcher.Constraint("Symmetric", 2, 2, 7, 2, -1))
sketch14.addConstraint(Sketcher.Constraint("Perpendicular", 3, 7))
sketch14.addConstraint(Sketcher.Constraint("Equal", 2, 8))
sketch14.addConstraint(Sketcher.Constraint("DistanceY", 2, 2, 2, 1, 5.0))
sketch14.addConstraint(Sketcher.Constraint("DistanceX", 1, 2, 1, 1, 20.4))
sketch14.addConstraint(Sketcher.Constraint("DistanceY", 0, 2, 0, 1, 26.4))
sketch14.addConstraint(Sketcher.Constraint("DistanceY", 5, 1, 5, 2, 46.4))
sketch14.addConstraint(Sketcher.Constraint("DistanceX", 4, 1, 4, 2, 18.15))
sketch14.addConstraint(Sketcher.Constraint("DistanceX", -1, 1, 0, 2, 12.7))
sketch14.setExpression("Constraints[22]", "Params.sketch14_height")
sketch14.setExpression("Constraints[23]", "Params.sketch14_width")
sketch14.setExpression("Constraints[24]", "Params.sketch14_height2")
sketch14.setExpression("Constraints[25]", "Params.sketch14_height3")
sketch14.setExpression("Constraints[26]", "Params.sketch14_width2")
pad11 = doc.addObject("PartDesign::Pad", "Pad010")
body14.addObject(pad11)
pad11.Profile = sketch14
pad11.setExpression("Length", "Params.pad11_length")
pad11.Reversed = True
doc.recompute()

boolean5 = doc.addObject("PartDesign::Boolean", "Boolean004")
body13.addObject(boolean5)
boolean5.Type = "Fuse"
boolean5.addObjects([body14])
body15 = doc.addObject("PartDesign::Body", "Body014")

# Sketch on YZ plane
sketch15 = doc.addObject("Sketcher::SketchObject", "Sketch014")
body15.addObject(sketch15)
sketch15.AttachmentSupport = (doc.getObject("YZ_Plane014"), [""])
sketch15.MapMode = "FlatFace"
sketch15.AttachmentOffset = App.Placement(V(0, 0, -159), App.Rotation())
add_polygon(sketch15, [(-8, -50), (-8, -18), (-3, -23), (15, -23), (15, -50)])  # lines 0-4
sketch15.addConstraint(Sketcher.Constraint("Vertical", 0))
sketch15.addConstraint(Sketcher.Constraint("Horizontal", 2))
sketch15.addConstraint(Sketcher.Constraint("Vertical", 3))
sketch15.addConstraint(Sketcher.Constraint("Horizontal", 4))
sketch15.addConstraint(Sketcher.Constraint("Angle", 1, Q("-45 deg")))
sketch15.addConstraint(Sketcher.Constraint("DistanceY", 0, 1, 0, 2, 31.8))
sketch15.addConstraint(Sketcher.Constraint("DistanceY", 3, 2, 3, 1, 26.8))
sketch15.addConstraint(Sketcher.Constraint("DistanceY", 3, 2, -1, 1, 50.0))
sketch15.addConstraint(Sketcher.Constraint("DistanceX", 2, 1, 2, 2, 18.15))
sketch15.addConstraint(Sketcher.Constraint("DistanceX", 0, 2, -1, 1, 7.7))
sketch15.setExpression("Constraints[10]", "Params.sketch15_height")
sketch15.setExpression("Constraints[11]", "Params.sketch15_height2")
sketch15.setExpression("Constraints[13]", "Params.sketch15_width")
pad12 = doc.addObject("PartDesign::Pad", "Pad011")
body15.addObject(pad12)
pad12.Profile = sketch15
pad12.setExpression("Length", "Params.pad12_length")
body16 = doc.addObject("PartDesign::Body", "Body015")

# Sketch on YZ plane
sketch16 = doc.addObject("Sketcher::SketchObject", "Sketch015")
body16.addObject(sketch16)
sketch16.AttachmentSupport = (doc.getObject("YZ_Plane015"), [""])
sketch16.MapMode = "FlatFace"
sketch16.AttachmentOffset = App.Placement(V(0, 0, -159), App.Rotation())
add_polygon(sketch16, [(-3, 23), (-8, 18), (-8, 50), (15, 50), (15, 23)])  # lines 0-4
sketch16.addConstraint(Sketcher.Constraint("Vertical", 1))
sketch16.addConstraint(Sketcher.Constraint("Horizontal", 2))
sketch16.addConstraint(Sketcher.Constraint("Vertical", 3))
sketch16.addConstraint(Sketcher.Constraint("Horizontal", 4))
sketch16.addConstraint(Sketcher.Constraint("Angle", 0, Q("-135 deg")))
sketch16.addConstraint(Sketcher.Constraint("DistanceY", 1, 1, 1, 2, 31.8))
sketch16.addConstraint(Sketcher.Constraint("DistanceY", 3, 2, 3, 1, 26.8))
sketch16.addConstraint(Sketcher.Constraint("DistanceY", -1, 1, 1, 2, 50.0))
sketch16.addConstraint(Sketcher.Constraint("DistanceX", 2, 1, 2, 2, 23.15))
sketch16.addConstraint(Sketcher.Constraint("DistanceX", 0, 2, -1, 1, 7.7))
sketch16.setExpression("Constraints[10]", "Params.sketch16_height")
sketch16.setExpression("Constraints[11]", "Params.sketch16_height2")
sketch16.setExpression("Constraints[13]", "Params.sketch16_width")
pad13 = doc.addObject("PartDesign::Pad", "Pad012")
body16.addObject(pad13)
pad13.Profile = sketch16
pad13.setExpression("Length", "Params.pad13_length")
doc.recompute()

boolean6 = doc.addObject("PartDesign::Boolean", "Boolean005")
body16.addObject(boolean6)
boolean6.Type = "Fuse"
boolean6.addObjects([body13])
doc.recompute()

boolean7 = doc.addObject("PartDesign::Boolean", "Boolean006")
body16.addObject(boolean7)
boolean7.Type = "Fuse"
boolean7.addObjects([body15])

# Sketch on YZ plane
sketch17 = doc.addObject("Sketcher::SketchObject", "Sketch016")
body16.addObject(sketch17)
sketch17.AttachmentSupport = (doc.getObject("YZ_Plane015"), [""])
sketch17.MapMode = "FlatFace"
sketch17.AttachmentOffset = App.Placement(V(0, 0, -159), App.Rotation())
add_polygon(sketch17, [(30.2, -40), (27.2, -40), (27.2, -10), (30.2, -10)])  # lines 0-3
add_polygon(sketch17, [(30.2, 10), (27.2, 10), (27.2, 40), (30.2, 40)])  # lines 4-7
sketch17.addConstraint(Sketcher.Constraint("Horizontal", 0))
sketch17.addConstraint(Sketcher.Constraint("Vertical", 1))
sketch17.addConstraint(Sketcher.Constraint("Horizontal", 2))
sketch17.addConstraint(Sketcher.Constraint("Vertical", 3))
sketch17.addConstraint(Sketcher.Constraint("Horizontal", 4))
sketch17.addConstraint(Sketcher.Constraint("Vertical", 5))
sketch17.addConstraint(Sketcher.Constraint("Horizontal", 6))
sketch17.addConstraint(Sketcher.Constraint("Vertical", 7))
sketch17.addConstraint(Sketcher.Constraint("Symmetric", 1, 2, 4, 2, -1))
sketch17.addConstraint(Sketcher.Constraint("Symmetric", 3, 2, 6, 2, -1))
sketch17.addConstraint(Sketcher.Constraint("DistanceX", 0, 2, 0, 1, 3.0))
sketch17.addConstraint(Sketcher.Constraint("DistanceY", 1, 1, 1, 2, 30.0))
sketch17.addConstraint(Sketcher.Constraint("DistanceY", 0, 2, -1, 1, 40.0))
sketch17.addConstraint(Sketcher.Constraint("DistanceX", -1, 1, 0, 2, 27.2))
sketch17.setExpression("Constraints[18]", "Params.sketch17_width")
sketch17.setExpression("Constraints[19]", "Params.sketch17_height")
pocket4 = doc.addObject("PartDesign::Pocket", "Pocket003")
body16.addObject(pocket4)
pocket4.Profile = sketch17
pocket4.setExpression("Length", "Params.pocket4_length")
pocket4.Reversed = True
doc.recompute()

fillet4 = doc.addObject("PartDesign::Fillet", "Fillet003")
body16.addObject(fillet4)
fillet4.Base = (pocket4, edges_at(pocket4, [
    (-127, 30.2, -25),
    (-159, 30.2, -25),
    (-127, 30.2, 25),
    (-159, 30.2, 25),
]))
fillet4.setExpression("Radius", "Params.fillet4_radius")
doc.recompute()

fillet5 = doc.addObject("PartDesign::Fillet", "Fillet004")
body16.addObject(fillet5)
fillet5.Base = (fillet4, edges_at(fillet4, [
    (-159, 40.45, 0),
    (-127, 40.45, 0),
    (-127, 27.2, -25),
    (-159, 27.2, -25),
    (-127, 27.2, 25),
    (-159, 27.2, 25),
]))
fillet5.setExpression("Radius", "Params.fillet5_radius")

# Sketch on XY plane
sketch18 = doc.addObject("Sketcher::SketchObject", "Sketch017")
body16.addObject(sketch18)
sketch18.AttachmentSupport = (doc.getObject("XY_Plane015"), [""])
sketch18.MapMode = "FlatFace"
add_polygon(sketch18, [(-153, 20.7), (-153, 17.7), (-148, 17.7), (-148, 20.7)])  # lines 0-3
add_polygon(sketch18, [(-138, 20.7), (-138, 17.7), (-133, 17.7), (-133, 20.7)])  # lines 4-7
sketch18.addConstraint(Sketcher.Constraint("Vertical", 0))
sketch18.addConstraint(Sketcher.Constraint("Horizontal", 1))
sketch18.addConstraint(Sketcher.Constraint("Vertical", 2))
sketch18.addConstraint(Sketcher.Constraint("Horizontal", 3))
sketch18.addConstraint(Sketcher.Constraint("Vertical", 4))
sketch18.addConstraint(Sketcher.Constraint("Horizontal", 5))
sketch18.addConstraint(Sketcher.Constraint("Vertical", 6))
sketch18.addConstraint(Sketcher.Constraint("Horizontal", 7))
sketch18.addConstraint(Sketcher.Constraint("Horizontal", 1, 2, 4, 2))
sketch18.addConstraint(Sketcher.Constraint("Horizontal", 3, 2, 6, 2))
sketch18.addConstraint(Sketcher.Constraint("Equal", 3, 5))
sketch18.addConstraint(Sketcher.Constraint("DistanceX", 1, 1, 1, 2, 5.0))
sketch18.addConstraint(Sketcher.Constraint("DistanceY", 0, 2, 0, 1, 3.0))
sketch18.addConstraint(Sketcher.Constraint("DistanceX", 0, 2, -1, 1, 153.0))
sketch18.addConstraint(Sketcher.Constraint("DistanceX", 4, 2, -1, 1, 138.0))
sketch18.addConstraint(Sketcher.Constraint("DistanceY", -1, 1, 0, 2, 17.7))
sketch18.setExpression("Constraints[19]", "Params.sketch18_width")
sketch18.setExpression("Constraints[20]", "Params.sketch18_height")
pocket5 = doc.addObject("PartDesign::Pocket", "Pocket004")
body16.addObject(pocket5)
pocket5.Profile = sketch18
pocket5.Type = "ThroughAll"
pocket5.Midplane = True

# Sketch on YZ plane
sketch19 = doc.addObject("Sketcher::SketchObject", "Sketch018")
body16.addObject(sketch19)
sketch19.AttachmentSupport = (doc.getObject("YZ_Plane015"), [""])
sketch19.MapMode = "FlatFace"
sketch19.AttachmentOffset = App.Placement(V(0, 0, -159), App.Rotation())
add_polygon(sketch19, [(7, -50), (-8, -50), (-8, -30)])  # lines 0-2
add_polygon(sketch19, [(-8, 30), (-8, 50), (7, 50)])  # lines 3-5
sketch19.addConstraint(Sketcher.Constraint("Horizontal", 0))
sketch19.addConstraint(Sketcher.Constraint("Vertical", 1))
sketch19.addConstraint(Sketcher.Constraint("Vertical", 3))
sketch19.addConstraint(Sketcher.Constraint("Horizontal", 4))
sketch19.addConstraint(Sketcher.Constraint("Symmetric", 0, 2, 3, 2, -1))
sketch19.addConstraint(Sketcher.Constraint("Vertical", 2, 2, 4, 2))
sketch19.addConstraint(Sketcher.Constraint("Equal", 1, 3))
sketch19.addConstraint(Sketcher.Constraint("DistanceX", 0, 2, 0, 1, 15.0))
sketch19.addConstraint(Sketcher.Constraint("DistanceY", 1, 1, 1, 2, 20.0))
sketch19.addConstraint(Sketcher.Constraint("DistanceY", 0, 2, -1, 1, 50.0))
sketch19.addConstraint(Sketcher.Constraint("DistanceX", 0, 2, -1, 1, 7.7))
sketch19.setExpression("Constraints[13]", "Params.sketch19_width")
sketch19.setExpression("Constraints[14]", "Params.sketch19_height")
pocket6 = doc.addObject("PartDesign::Pocket", "Pocket005")
body16.addObject(pocket6)
pocket6.Profile = sketch19
pocket6.setExpression("Length", "Params.pocket6_length")
pocket6.Reversed = True
doc.recompute()

fillet6 = doc.addObject("PartDesign::Fillet", "Fillet005")
body16.addObject(fillet6)
fillet6.Base = (pocket6, edges_at(pocket6, [
    (-143, 7.3, -50),
    (-143, -7.7, -30),
    (-143, 7.3, 50),
    (-143, -7.7, 30),
]))
fillet6.setExpression("Radius", "Params.fillet6_radius")
body17 = doc.addObject("PartDesign::Body", "Body016")
body17.AllowCompound = True

# Sketch on XY plane
sketch20 = doc.addObject("Sketcher::SketchObject", "Sketch019")
body17.addObject(sketch20)
sketch20.AttachmentSupport = (doc.getObject("XY_Plane016"), [""])
sketch20.MapMode = "FlatFace"
sketch20.addGeometry(Part.Circle(V(-425, 40, 0), V(0, 0, 1), 7), False)
sketch20.addGeometry(Part.Circle(V(410, 40, 0), V(0, 0, 1), 7), False)
sketch20.addGeometry(Part.Circle(V(-54, 40, 0), V(0, 0, 1), 7), False)
sketch20.addGeometry(Part.Circle(V(157, 40, 0), V(0, 0, 1), 7), False)
sketch20.addGeometry(Part.Circle(V(-143, 40, 0), V(0, 0, 1), 7), False)
sketch20.addConstraint(Sketcher.Constraint("Equal", 0, 1))
sketch20.addConstraint(Sketcher.Constraint("Equal", 1, 2))
sketch20.addConstraint(Sketcher.Constraint("Equal", 2, 3))
sketch20.addConstraint(Sketcher.Constraint("Equal", 3, 4))
sketch20.addConstraint(Sketcher.Constraint("Horizontal", 0, 3, 1, 3))
sketch20.addConstraint(Sketcher.Constraint("Horizontal", 1, 3, 2, 3))
sketch20.addConstraint(Sketcher.Constraint("Horizontal", 2, 3, 3, 3))
sketch20.addConstraint(Sketcher.Constraint("Horizontal", 3, 3, 4, 3))
sketch20.addConstraint(Sketcher.Constraint("Diameter", 0, 13.5))
sketch20.addConstraint(Sketcher.Constraint("DistanceX", 0, 3, -1, 1, 425.0))
sketch20.addConstraint(Sketcher.Constraint("DistanceX", -1, 1, 1, 3, 410.0))
sketch20.addConstraint(Sketcher.Constraint("DistanceX", 2, 3, -1, 1, 54.0))
sketch20.addConstraint(Sketcher.Constraint("DistanceX", -1, 1, 3, 3, 157.0))
sketch20.addConstraint(Sketcher.Constraint("DistanceX", 4, 3, -1, 1, 143.0))
sketch20.addConstraint(Sketcher.Constraint("DistanceY", -1, 1, 0, 3, 40.45))
sketch20.setExpression("Constraints[8]", "Params.sketch20_diameter")
pad14 = doc.addObject("PartDesign::Pad", "Pad013")
body17.addObject(pad14)
pad14.Profile = sketch20
pad14.Type = "TwoLengths"
pad14.setExpression("Length", "Params.pad14_length")
pad14.setExpression("Length2", "Params.pad14_length2")
doc.recompute()

body18 = doc.addObject("PartDesign::Body", "Body017")
body18.BaseFeature = body17
boolean8 = doc.addObject("PartDesign::Boolean", "Boolean007")
body2.addObject(boolean8)
boolean8.Type = "Cut"
boolean8.addObjects([body18])
doc.recompute()

body19 = doc.addObject("PartDesign::Body", "Body018")
body19.BaseFeature = body17
boolean9 = doc.addObject("PartDesign::Boolean", "Boolean008")
body3.addObject(boolean9)
boolean9.Type = "Cut"
boolean9.addObjects([body19])
doc.recompute()

body20 = doc.addObject("PartDesign::Body", "Body019")
body20.BaseFeature = body17
boolean10 = doc.addObject("PartDesign::Boolean", "Boolean009")
body4.addObject(boolean10)
boolean10.Type = "Cut"
boolean10.addObjects([body20])
doc.recompute()

body21 = doc.addObject("PartDesign::Body", "Body020")
body21.BaseFeature = body17
boolean11 = doc.addObject("PartDesign::Boolean", "Boolean010")
body5.addObject(boolean11)
boolean11.Type = "Cut"
boolean11.addObjects([body21])
doc.recompute()

body22 = doc.addObject("PartDesign::Body", "Body021")
body22.BaseFeature = body17
boolean12 = doc.addObject("PartDesign::Boolean", "Boolean011")
body6.addObject(boolean12)
boolean12.Type = "Cut"
boolean12.addObjects([body22])
doc.recompute()

boolean13 = doc.addObject("PartDesign::Boolean", "Boolean012")
body7.addObject(boolean13)
boolean13.Type = "Cut"
boolean13.addObjects([body17])
mirroring.Visibility = False
mirroring2.Visibility = False

doc.recompute()
